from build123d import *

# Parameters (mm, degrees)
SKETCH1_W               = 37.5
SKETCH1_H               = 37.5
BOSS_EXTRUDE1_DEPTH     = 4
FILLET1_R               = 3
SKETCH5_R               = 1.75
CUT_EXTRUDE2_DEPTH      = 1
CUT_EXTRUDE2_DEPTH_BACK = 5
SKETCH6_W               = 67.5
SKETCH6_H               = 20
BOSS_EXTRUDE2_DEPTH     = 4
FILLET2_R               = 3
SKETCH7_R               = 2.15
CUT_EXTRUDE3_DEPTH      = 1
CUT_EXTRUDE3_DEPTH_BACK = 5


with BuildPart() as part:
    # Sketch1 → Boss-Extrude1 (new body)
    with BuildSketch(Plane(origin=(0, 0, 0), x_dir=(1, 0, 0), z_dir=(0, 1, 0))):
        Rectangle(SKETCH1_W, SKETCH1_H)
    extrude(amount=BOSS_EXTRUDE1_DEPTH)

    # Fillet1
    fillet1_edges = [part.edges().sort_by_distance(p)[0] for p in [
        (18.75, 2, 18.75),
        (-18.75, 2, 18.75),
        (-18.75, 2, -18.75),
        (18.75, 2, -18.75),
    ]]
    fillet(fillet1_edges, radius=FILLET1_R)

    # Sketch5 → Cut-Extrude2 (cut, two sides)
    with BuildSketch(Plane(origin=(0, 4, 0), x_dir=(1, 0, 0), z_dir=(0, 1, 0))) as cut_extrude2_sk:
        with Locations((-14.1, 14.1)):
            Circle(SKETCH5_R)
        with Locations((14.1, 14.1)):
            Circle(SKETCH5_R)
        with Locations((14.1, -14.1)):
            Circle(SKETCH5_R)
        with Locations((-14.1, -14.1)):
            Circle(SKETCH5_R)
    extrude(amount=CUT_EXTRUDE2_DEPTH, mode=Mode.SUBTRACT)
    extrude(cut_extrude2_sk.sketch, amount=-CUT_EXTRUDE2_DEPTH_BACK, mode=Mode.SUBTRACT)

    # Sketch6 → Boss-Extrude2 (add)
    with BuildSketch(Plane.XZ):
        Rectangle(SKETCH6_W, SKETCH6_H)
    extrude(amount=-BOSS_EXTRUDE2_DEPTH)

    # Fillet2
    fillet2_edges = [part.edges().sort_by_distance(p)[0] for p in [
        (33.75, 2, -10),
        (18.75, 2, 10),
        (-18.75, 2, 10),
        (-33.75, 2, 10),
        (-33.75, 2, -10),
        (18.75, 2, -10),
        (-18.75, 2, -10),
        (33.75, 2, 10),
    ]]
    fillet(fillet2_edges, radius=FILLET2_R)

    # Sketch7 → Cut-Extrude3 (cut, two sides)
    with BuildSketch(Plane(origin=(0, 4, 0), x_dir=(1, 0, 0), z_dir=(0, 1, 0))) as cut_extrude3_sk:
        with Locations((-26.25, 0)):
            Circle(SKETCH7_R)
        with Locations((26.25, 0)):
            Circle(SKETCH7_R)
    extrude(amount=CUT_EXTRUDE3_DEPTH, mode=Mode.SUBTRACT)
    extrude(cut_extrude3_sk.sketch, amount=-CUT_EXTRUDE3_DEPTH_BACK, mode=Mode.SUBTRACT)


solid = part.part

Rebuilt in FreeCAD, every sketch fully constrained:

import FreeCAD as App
import Part
import Sketcher


def edges_at(feature, points):
    """Names of the edges that pass closest to the given points."""
    edges = feature.Shape.Edges
    near = lambda p: min(range(len(edges)), key=lambda i: edges[i].distToShape(Part.Vertex(*p))[0])
    return sorted({f"Edge{near(p) + 1}" for p in points})

doc = App.newDocument("Part")
body = doc.addObject("PartDesign::Body", "Body")

# Sketch on XZ plane
sketch1 = doc.addObject("Sketcher::SketchObject", "Sketch")
body.addObject(sketch1)
sketch1.AttachmentSupport = (doc.XZ_Plane, [""])
sketch1.MapMode = "FlatFace"
sketch1.addGeometry(Part.LineSegment(App.Vector(-19, -19, 0), App.Vector(-19, 19, 0)), False)
sketch1.addGeometry(Part.LineSegment(App.Vector(-19, 19, 0), App.Vector(19, 19, 0)), False)
sketch1.addGeometry(Part.LineSegment(App.Vector(19, 19, 0), App.Vector(19, -19, 0)), False)
sketch1.addGeometry(Part.LineSegment(App.Vector(19, -19, 0), App.Vector(-19, -19, 0)), False)
sketch1.addConstraint(Sketcher.Constraint("Coincident", 0, 2, 1, 1))
sketch1.addConstraint(Sketcher.Constraint("Coincident", 1, 2, 2, 1))
sketch1.addConstraint(Sketcher.Constraint("Coincident", 2, 2, 3, 1))
sketch1.addConstraint(Sketcher.Constraint("Coincident", 3, 2, 0, 1))
sketch1.addConstraint(Sketcher.Constraint("Vertical", 0))
sketch1.addConstraint(Sketcher.Constraint("Horizontal", 1))
sketch1.addConstraint(Sketcher.Constraint("Vertical", 2))
sketch1.addConstraint(Sketcher.Constraint("Horizontal", 3))
sketch1.addConstraint(Sketcher.Constraint("Symmetric", 0, 2, 2, 2, -1, 1))
sketch1.addConstraint(Sketcher.Constraint("Equal", 3, 0))
sketch1.addConstraint(Sketcher.Constraint("DistanceX", 1, 1, 1, 2, 37.5))
pad1 = doc.addObject("PartDesign::Pad", "Pad")
body.addObject(pad1)
pad1.Profile = sketch1
pad1.Length = 4
pad1.Reversed = True
doc.recompute()

fillet = doc.addObject("PartDesign::Fillet", "Fillet")
body.addObject(fillet)
fillet.Base = (pad1, edges_at(pad1, [
    (18.75, 2, 18.75),
    (-18.75, 2, 18.75),
    (-18.75, 2, -18.75),
    (18.75, 2, -18.75),
]))
fillet.Radius = 3

# Sketch on XZ plane
sketch2 = doc.addObject("Sketcher::SketchObject", "Sketch001")
body.addObject(sketch2)
sketch2.AttachmentSupport = (doc.XZ_Plane, [""])
sketch2.MapMode = "FlatFace"
sketch2.AttachmentOffset = App.Placement(App.Vector(0, 0, -4), App.Rotation())
sketch2.addGeometry(Part.Circle(App.Vector(-14.1, -14.1, 0), App.Vector(0, 0, 1), 1.8), False)
sketch2.addGeometry(Part.Circle(App.Vector(14.1, -14.1, 0), App.Vector(0, 0, 1), 1.8), False)
sketch2.addGeometry(Part.Circle(App.Vector(14.1, 14.1, 0), App.Vector(0, 0, 1), 1.8), False)
sketch2.addGeometry(Part.Circle(App.Vector(-14.1, 14.1, 0), App.Vector(0, 0, 1), 1.8), False)
sketch2.addConstraint(Sketcher.Constraint("Equal", 0, 1))
sketch2.addConstraint(Sketcher.Constraint("Equal", 1, 2))
sketch2.addConstraint(Sketcher.Constraint("Equal", 2, 3))
sketch2.addConstraint(Sketcher.Constraint("Symmetric", 0, 3, 2, 3, -1, 1))
sketch2.addConstraint(Sketcher.Constraint("Symmetric", 1, 3, 3, 3, -1, 1))
sketch2.addConstraint(Sketcher.Constraint("Symmetric", 0, 3, 1, 3, -2))
sketch2.addConstraint(Sketcher.Constraint("Diameter", 0, 3.5))
sketch2.addConstraint(Sketcher.Constraint("DistanceX", 0, 3, -1, 1, 14.1))
sketch2.addConstraint(Sketcher.Constraint("DistanceY", 0, 3, -1, 1, 14.1))
pocket1 = doc.addObject("PartDesign::Pocket", "Pocket")
body.addObject(pocket1)
pocket1.Profile = sketch2
pocket1.Type = "ThroughAll"
pocket1.Midplane = True

# Sketch on XZ plane
sketch3 = doc.addObject("Sketcher::SketchObject", "Sketch002")
body.addObject(sketch3)
sketch3.AttachmentSupport = (doc.XZ_Plane, [""])
sketch3.MapMode = "FlatFace"
sketch3.addGeometry(Part.LineSegment(App.Vector(-34, 10, 0), App.Vector(-34, -10, 0)), False)
sketch3.addGeometry(Part.LineSegment(App.Vector(-34, -10, 0), App.Vector(34, -10, 0)), False)
sketch3.addGeometry(Part.LineSegment(App.Vector(34, -10, 0), App.Vector(34, 10, 0)), False)
sketch3.addGeometry(Part.LineSegment(App.Vector(34, 10, 0), App.Vector(-34, 10, 0)), False)
sketch3.addConstraint(Sketcher.Constraint("Coincident", 0, 2, 1, 1))
sketch3.addConstraint(Sketcher.Constraint("Coincident", 1, 2, 2, 1))
sketch3.addConstraint(Sketcher.Constraint("Coincident", 2, 2, 3, 1))
sketch3.addConstraint(Sketcher.Constraint("Coincident", 3, 2, 0, 1))
sketch3.addConstraint(Sketcher.Constraint("Vertical", 0))
sketch3.addConstraint(Sketcher.Constraint("Horizontal", 1))
sketch3.addConstraint(Sketcher.Constraint("Vertical", 2))
sketch3.addConstraint(Sketcher.Constraint("Horizontal", 3))
sketch3.addConstraint(Sketcher.Constraint("Symmetric", 0, 2, 2, 2, -1, 1))
sketch3.addConstraint(Sketcher.Constraint("DistanceY", 0, 2, 0, 1, 20.0))
sketch3.addConstraint(Sketcher.Constraint("DistanceX", 1, 1, 1, 2, 67.5))
pad2 = doc.addObject("PartDesign::Pad", "Pad001")
body.addObject(pad2)
pad2.Profile = sketch3
pad2.Length = 4
pad2.Reversed = True
doc.recompute()

fillet2 = doc.addObject("PartDesign::Fillet", "Fillet001")
body.addObject(fillet2)
fillet2.Base = (pad2, edges_at(pad2, [
    (33.75, 2, -10),
    (18.75, 2, 10),
    (-18.75, 2, 10),
    (-33.75, 2, 10),
    (-33.75, 2, -10),
    (18.75, 2, -10),
    (-18.75, 2, -10),
    (33.75, 2, 10),
]))
fillet2.Radius = 3

# Sketch on XZ plane
sketch4 = doc.addObject("Sketcher::SketchObject", "Sketch003")
body.addObject(sketch4)
sketch4.AttachmentSupport = (doc.XZ_Plane, [""])
sketch4.MapMode = "FlatFace"
sketch4.AttachmentOffset = App.Placement(App.Vector(0, 0, -4), App.Rotation())
sketch4.addGeometry(Part.Circle(App.Vector(-26.2, 0, 0), App.Vector(0, 0, 1), 2.1), False)
sketch4.addGeometry(Part.Circle(App.Vector(26.2, 0, 0), App.Vector(0, 0, 1), 2.1), False)
sketch4.addConstraint(Sketcher.Constraint("Equal", 0, 1))
sketch4.addConstraint(Sketcher.Constraint("Symmetric", 0, 3, 1, 3, -1, 1))
sketch4.addConstraint(Sketcher.Constraint("PointOnObject", 0, 3, -1))
sketch4.addConstraint(Sketcher.Constraint("Diameter", 0, 4.3))
sketch4.addConstraint(Sketcher.Constraint("DistanceX", 0, 3, 1, 3, 52.5))
pocket2 = doc.addObject("PartDesign::Pocket", "Pocket001")
body.addObject(pocket2)
pocket2.Profile = sketch4
pocket2.Type = "ThroughAll"
pocket2.Midplane = True

doc.recompute()
